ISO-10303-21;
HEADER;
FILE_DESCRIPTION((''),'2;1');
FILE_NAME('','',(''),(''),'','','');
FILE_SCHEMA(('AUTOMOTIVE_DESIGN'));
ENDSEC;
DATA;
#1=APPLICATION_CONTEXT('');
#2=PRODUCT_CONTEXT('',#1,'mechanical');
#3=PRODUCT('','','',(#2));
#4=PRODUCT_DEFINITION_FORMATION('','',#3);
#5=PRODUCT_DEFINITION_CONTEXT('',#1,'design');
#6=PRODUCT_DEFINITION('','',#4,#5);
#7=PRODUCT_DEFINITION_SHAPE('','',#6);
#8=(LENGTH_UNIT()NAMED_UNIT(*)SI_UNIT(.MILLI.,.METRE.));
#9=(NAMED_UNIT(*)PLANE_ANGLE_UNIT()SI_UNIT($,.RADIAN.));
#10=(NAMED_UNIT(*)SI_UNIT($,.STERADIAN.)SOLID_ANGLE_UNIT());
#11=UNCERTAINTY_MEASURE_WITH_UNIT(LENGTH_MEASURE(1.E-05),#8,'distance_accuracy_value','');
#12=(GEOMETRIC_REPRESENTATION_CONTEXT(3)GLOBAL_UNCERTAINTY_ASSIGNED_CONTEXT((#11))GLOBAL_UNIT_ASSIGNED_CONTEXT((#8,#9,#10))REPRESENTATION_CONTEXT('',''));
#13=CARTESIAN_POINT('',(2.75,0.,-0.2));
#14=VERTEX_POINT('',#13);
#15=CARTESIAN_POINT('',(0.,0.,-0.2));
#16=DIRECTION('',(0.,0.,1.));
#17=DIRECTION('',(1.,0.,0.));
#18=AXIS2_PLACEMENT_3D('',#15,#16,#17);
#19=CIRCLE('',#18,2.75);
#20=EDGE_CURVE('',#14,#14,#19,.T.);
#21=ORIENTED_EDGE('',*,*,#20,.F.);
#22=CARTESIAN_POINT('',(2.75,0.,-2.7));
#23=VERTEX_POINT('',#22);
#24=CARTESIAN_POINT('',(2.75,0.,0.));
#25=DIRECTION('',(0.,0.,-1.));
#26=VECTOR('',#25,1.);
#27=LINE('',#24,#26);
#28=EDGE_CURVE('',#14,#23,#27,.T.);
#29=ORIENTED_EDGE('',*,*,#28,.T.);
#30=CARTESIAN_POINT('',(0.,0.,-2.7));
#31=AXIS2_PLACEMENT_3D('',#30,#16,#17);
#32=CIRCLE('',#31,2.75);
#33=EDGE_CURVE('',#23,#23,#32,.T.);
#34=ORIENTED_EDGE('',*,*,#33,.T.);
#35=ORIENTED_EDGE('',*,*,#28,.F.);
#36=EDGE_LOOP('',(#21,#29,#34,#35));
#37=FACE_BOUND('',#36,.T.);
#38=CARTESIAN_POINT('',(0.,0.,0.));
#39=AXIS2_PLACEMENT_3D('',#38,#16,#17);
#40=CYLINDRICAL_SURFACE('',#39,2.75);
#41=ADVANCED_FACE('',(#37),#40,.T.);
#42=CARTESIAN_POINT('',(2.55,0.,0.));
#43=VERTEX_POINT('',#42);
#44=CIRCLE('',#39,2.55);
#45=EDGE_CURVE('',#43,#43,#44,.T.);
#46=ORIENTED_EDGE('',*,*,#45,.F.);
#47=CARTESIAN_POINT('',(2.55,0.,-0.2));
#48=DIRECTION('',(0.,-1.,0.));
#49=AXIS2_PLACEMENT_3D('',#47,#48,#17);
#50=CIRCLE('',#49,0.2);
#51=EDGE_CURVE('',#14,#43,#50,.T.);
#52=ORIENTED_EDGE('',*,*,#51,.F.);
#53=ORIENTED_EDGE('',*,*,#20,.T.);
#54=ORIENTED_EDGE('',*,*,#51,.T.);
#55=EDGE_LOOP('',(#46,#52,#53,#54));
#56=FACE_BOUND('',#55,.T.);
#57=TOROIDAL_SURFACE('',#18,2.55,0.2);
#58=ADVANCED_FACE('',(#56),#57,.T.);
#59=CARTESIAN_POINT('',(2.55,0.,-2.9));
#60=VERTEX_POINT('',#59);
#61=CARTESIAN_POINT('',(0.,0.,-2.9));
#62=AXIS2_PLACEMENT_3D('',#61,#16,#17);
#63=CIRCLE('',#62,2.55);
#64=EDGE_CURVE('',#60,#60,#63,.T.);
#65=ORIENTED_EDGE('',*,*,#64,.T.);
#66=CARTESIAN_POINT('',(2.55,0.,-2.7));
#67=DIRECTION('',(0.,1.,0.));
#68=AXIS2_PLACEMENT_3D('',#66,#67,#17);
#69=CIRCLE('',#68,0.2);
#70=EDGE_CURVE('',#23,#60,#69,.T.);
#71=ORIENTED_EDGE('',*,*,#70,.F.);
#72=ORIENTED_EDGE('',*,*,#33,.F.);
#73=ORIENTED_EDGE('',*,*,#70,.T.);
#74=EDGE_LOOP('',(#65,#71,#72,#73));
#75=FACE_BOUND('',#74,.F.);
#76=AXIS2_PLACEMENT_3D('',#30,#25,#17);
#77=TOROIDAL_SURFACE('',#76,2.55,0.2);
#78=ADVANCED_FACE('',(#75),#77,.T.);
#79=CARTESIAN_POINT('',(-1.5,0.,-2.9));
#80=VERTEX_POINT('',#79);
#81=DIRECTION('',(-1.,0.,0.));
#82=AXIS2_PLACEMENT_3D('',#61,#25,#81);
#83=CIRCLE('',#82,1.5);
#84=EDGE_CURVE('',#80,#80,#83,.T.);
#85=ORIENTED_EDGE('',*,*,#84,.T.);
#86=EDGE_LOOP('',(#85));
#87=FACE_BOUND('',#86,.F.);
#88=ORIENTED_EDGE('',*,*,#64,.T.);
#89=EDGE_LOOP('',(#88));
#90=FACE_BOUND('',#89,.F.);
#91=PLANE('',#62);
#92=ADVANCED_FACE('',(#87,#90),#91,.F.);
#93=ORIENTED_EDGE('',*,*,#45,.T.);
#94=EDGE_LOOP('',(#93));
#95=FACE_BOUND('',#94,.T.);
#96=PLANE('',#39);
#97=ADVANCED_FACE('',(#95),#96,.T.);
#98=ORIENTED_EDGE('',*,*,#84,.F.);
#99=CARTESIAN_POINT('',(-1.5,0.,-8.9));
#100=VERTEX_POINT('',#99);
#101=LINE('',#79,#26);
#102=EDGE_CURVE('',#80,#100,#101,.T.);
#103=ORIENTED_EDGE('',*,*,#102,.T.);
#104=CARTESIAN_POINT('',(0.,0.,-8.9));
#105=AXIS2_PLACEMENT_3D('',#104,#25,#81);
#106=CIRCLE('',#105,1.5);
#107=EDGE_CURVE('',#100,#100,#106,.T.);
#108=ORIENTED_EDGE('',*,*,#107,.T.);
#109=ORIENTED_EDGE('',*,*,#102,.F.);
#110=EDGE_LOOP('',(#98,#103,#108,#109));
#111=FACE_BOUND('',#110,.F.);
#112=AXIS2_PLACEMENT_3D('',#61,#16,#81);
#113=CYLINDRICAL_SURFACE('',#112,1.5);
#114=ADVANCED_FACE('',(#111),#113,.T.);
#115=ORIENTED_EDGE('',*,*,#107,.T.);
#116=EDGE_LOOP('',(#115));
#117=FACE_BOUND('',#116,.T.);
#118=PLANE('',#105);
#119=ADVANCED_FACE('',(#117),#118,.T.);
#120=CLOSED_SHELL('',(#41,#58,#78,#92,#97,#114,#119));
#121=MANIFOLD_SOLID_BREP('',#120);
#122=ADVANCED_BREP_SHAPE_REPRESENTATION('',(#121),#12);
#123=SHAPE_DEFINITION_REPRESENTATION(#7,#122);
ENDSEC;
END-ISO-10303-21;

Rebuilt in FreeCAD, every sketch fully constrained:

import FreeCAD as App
import Part
import Sketcher
from FreeCAD import Vector
Q = App.Units.Quantity


def edges_at(feature, points):
    """Names of the edges that pass closest to the given points."""
    edges = feature.Shape.Edges
    near = lambda p: min(range(len(edges)), key=lambda i: edges[i].distToShape(Part.Vertex(*p))[0])
    return sorted({f"Edge{near(p) + 1}" for p in points})

doc = App.newDocument("Part")
body = doc.addObject("PartDesign::Body", "Body")

# Sketch on XY plane
sketch1 = doc.addObject("Sketcher::SketchObject", "Sketch")
body.addObject(sketch1)
sketch1.AttachmentSupport = (doc.XY_Plane, [""])
sketch1.MapMode = "FlatFace"
sketch1.addGeometry(Part.Circle(Vector(0, 0, 0), Vector(0, 0, 1), 2.75), False)
sketch1.addConstraint([
    Sketcher.Constraint("Coincident", 0, 3, -1, 1),
    Sketcher.Constraint("Diameter", 0, Q("5.5 mm")),
])
pad1 = doc.addObject("PartDesign::Pad", "Pad")
body.addObject(pad1)
pad1.Profile = sketch1
pad1.Length = 2.9
pad1.Reversed = True

# Sketch on XY plane
sketch2 = doc.addObject("Sketcher::SketchObject", "Sketch001")
body.addObject(sketch2)
sketch2.AttachmentSupport = (doc.XY_Plane, [""])
sketch2.MapMode = "FlatFace"
sketch2.AttachmentOffset = App.Placement(Vector(0, 0, -2.9), App.Rotation())
sketch2.addGeometry(Part.Circle(Vector(0, 0, 0), Vector(0, 0, 1), 1.5), False)
sketch2.addConstraint([
    Sketcher.Constraint("Coincident", 0, 3, -1, 1),
    Sketcher.Constraint("Diameter", 0, Q("3 mm")),
])
pad2 = doc.addObject("PartDesign::Pad", "Pad001")
body.addObject(pad2)
pad2.Profile = sketch2
pad2.Length = 6
pad2.Reversed = True
doc.recompute()

fillet = doc.addObject("PartDesign::Fillet", "Fillet")
body.addObject(fillet)
fillet.Base = (pad2, edges_at(pad2, [(-2.75, 0, 0), (-2.75, 0, -2.9)]))
fillet.Radius = 0.2

doc.recompute()
